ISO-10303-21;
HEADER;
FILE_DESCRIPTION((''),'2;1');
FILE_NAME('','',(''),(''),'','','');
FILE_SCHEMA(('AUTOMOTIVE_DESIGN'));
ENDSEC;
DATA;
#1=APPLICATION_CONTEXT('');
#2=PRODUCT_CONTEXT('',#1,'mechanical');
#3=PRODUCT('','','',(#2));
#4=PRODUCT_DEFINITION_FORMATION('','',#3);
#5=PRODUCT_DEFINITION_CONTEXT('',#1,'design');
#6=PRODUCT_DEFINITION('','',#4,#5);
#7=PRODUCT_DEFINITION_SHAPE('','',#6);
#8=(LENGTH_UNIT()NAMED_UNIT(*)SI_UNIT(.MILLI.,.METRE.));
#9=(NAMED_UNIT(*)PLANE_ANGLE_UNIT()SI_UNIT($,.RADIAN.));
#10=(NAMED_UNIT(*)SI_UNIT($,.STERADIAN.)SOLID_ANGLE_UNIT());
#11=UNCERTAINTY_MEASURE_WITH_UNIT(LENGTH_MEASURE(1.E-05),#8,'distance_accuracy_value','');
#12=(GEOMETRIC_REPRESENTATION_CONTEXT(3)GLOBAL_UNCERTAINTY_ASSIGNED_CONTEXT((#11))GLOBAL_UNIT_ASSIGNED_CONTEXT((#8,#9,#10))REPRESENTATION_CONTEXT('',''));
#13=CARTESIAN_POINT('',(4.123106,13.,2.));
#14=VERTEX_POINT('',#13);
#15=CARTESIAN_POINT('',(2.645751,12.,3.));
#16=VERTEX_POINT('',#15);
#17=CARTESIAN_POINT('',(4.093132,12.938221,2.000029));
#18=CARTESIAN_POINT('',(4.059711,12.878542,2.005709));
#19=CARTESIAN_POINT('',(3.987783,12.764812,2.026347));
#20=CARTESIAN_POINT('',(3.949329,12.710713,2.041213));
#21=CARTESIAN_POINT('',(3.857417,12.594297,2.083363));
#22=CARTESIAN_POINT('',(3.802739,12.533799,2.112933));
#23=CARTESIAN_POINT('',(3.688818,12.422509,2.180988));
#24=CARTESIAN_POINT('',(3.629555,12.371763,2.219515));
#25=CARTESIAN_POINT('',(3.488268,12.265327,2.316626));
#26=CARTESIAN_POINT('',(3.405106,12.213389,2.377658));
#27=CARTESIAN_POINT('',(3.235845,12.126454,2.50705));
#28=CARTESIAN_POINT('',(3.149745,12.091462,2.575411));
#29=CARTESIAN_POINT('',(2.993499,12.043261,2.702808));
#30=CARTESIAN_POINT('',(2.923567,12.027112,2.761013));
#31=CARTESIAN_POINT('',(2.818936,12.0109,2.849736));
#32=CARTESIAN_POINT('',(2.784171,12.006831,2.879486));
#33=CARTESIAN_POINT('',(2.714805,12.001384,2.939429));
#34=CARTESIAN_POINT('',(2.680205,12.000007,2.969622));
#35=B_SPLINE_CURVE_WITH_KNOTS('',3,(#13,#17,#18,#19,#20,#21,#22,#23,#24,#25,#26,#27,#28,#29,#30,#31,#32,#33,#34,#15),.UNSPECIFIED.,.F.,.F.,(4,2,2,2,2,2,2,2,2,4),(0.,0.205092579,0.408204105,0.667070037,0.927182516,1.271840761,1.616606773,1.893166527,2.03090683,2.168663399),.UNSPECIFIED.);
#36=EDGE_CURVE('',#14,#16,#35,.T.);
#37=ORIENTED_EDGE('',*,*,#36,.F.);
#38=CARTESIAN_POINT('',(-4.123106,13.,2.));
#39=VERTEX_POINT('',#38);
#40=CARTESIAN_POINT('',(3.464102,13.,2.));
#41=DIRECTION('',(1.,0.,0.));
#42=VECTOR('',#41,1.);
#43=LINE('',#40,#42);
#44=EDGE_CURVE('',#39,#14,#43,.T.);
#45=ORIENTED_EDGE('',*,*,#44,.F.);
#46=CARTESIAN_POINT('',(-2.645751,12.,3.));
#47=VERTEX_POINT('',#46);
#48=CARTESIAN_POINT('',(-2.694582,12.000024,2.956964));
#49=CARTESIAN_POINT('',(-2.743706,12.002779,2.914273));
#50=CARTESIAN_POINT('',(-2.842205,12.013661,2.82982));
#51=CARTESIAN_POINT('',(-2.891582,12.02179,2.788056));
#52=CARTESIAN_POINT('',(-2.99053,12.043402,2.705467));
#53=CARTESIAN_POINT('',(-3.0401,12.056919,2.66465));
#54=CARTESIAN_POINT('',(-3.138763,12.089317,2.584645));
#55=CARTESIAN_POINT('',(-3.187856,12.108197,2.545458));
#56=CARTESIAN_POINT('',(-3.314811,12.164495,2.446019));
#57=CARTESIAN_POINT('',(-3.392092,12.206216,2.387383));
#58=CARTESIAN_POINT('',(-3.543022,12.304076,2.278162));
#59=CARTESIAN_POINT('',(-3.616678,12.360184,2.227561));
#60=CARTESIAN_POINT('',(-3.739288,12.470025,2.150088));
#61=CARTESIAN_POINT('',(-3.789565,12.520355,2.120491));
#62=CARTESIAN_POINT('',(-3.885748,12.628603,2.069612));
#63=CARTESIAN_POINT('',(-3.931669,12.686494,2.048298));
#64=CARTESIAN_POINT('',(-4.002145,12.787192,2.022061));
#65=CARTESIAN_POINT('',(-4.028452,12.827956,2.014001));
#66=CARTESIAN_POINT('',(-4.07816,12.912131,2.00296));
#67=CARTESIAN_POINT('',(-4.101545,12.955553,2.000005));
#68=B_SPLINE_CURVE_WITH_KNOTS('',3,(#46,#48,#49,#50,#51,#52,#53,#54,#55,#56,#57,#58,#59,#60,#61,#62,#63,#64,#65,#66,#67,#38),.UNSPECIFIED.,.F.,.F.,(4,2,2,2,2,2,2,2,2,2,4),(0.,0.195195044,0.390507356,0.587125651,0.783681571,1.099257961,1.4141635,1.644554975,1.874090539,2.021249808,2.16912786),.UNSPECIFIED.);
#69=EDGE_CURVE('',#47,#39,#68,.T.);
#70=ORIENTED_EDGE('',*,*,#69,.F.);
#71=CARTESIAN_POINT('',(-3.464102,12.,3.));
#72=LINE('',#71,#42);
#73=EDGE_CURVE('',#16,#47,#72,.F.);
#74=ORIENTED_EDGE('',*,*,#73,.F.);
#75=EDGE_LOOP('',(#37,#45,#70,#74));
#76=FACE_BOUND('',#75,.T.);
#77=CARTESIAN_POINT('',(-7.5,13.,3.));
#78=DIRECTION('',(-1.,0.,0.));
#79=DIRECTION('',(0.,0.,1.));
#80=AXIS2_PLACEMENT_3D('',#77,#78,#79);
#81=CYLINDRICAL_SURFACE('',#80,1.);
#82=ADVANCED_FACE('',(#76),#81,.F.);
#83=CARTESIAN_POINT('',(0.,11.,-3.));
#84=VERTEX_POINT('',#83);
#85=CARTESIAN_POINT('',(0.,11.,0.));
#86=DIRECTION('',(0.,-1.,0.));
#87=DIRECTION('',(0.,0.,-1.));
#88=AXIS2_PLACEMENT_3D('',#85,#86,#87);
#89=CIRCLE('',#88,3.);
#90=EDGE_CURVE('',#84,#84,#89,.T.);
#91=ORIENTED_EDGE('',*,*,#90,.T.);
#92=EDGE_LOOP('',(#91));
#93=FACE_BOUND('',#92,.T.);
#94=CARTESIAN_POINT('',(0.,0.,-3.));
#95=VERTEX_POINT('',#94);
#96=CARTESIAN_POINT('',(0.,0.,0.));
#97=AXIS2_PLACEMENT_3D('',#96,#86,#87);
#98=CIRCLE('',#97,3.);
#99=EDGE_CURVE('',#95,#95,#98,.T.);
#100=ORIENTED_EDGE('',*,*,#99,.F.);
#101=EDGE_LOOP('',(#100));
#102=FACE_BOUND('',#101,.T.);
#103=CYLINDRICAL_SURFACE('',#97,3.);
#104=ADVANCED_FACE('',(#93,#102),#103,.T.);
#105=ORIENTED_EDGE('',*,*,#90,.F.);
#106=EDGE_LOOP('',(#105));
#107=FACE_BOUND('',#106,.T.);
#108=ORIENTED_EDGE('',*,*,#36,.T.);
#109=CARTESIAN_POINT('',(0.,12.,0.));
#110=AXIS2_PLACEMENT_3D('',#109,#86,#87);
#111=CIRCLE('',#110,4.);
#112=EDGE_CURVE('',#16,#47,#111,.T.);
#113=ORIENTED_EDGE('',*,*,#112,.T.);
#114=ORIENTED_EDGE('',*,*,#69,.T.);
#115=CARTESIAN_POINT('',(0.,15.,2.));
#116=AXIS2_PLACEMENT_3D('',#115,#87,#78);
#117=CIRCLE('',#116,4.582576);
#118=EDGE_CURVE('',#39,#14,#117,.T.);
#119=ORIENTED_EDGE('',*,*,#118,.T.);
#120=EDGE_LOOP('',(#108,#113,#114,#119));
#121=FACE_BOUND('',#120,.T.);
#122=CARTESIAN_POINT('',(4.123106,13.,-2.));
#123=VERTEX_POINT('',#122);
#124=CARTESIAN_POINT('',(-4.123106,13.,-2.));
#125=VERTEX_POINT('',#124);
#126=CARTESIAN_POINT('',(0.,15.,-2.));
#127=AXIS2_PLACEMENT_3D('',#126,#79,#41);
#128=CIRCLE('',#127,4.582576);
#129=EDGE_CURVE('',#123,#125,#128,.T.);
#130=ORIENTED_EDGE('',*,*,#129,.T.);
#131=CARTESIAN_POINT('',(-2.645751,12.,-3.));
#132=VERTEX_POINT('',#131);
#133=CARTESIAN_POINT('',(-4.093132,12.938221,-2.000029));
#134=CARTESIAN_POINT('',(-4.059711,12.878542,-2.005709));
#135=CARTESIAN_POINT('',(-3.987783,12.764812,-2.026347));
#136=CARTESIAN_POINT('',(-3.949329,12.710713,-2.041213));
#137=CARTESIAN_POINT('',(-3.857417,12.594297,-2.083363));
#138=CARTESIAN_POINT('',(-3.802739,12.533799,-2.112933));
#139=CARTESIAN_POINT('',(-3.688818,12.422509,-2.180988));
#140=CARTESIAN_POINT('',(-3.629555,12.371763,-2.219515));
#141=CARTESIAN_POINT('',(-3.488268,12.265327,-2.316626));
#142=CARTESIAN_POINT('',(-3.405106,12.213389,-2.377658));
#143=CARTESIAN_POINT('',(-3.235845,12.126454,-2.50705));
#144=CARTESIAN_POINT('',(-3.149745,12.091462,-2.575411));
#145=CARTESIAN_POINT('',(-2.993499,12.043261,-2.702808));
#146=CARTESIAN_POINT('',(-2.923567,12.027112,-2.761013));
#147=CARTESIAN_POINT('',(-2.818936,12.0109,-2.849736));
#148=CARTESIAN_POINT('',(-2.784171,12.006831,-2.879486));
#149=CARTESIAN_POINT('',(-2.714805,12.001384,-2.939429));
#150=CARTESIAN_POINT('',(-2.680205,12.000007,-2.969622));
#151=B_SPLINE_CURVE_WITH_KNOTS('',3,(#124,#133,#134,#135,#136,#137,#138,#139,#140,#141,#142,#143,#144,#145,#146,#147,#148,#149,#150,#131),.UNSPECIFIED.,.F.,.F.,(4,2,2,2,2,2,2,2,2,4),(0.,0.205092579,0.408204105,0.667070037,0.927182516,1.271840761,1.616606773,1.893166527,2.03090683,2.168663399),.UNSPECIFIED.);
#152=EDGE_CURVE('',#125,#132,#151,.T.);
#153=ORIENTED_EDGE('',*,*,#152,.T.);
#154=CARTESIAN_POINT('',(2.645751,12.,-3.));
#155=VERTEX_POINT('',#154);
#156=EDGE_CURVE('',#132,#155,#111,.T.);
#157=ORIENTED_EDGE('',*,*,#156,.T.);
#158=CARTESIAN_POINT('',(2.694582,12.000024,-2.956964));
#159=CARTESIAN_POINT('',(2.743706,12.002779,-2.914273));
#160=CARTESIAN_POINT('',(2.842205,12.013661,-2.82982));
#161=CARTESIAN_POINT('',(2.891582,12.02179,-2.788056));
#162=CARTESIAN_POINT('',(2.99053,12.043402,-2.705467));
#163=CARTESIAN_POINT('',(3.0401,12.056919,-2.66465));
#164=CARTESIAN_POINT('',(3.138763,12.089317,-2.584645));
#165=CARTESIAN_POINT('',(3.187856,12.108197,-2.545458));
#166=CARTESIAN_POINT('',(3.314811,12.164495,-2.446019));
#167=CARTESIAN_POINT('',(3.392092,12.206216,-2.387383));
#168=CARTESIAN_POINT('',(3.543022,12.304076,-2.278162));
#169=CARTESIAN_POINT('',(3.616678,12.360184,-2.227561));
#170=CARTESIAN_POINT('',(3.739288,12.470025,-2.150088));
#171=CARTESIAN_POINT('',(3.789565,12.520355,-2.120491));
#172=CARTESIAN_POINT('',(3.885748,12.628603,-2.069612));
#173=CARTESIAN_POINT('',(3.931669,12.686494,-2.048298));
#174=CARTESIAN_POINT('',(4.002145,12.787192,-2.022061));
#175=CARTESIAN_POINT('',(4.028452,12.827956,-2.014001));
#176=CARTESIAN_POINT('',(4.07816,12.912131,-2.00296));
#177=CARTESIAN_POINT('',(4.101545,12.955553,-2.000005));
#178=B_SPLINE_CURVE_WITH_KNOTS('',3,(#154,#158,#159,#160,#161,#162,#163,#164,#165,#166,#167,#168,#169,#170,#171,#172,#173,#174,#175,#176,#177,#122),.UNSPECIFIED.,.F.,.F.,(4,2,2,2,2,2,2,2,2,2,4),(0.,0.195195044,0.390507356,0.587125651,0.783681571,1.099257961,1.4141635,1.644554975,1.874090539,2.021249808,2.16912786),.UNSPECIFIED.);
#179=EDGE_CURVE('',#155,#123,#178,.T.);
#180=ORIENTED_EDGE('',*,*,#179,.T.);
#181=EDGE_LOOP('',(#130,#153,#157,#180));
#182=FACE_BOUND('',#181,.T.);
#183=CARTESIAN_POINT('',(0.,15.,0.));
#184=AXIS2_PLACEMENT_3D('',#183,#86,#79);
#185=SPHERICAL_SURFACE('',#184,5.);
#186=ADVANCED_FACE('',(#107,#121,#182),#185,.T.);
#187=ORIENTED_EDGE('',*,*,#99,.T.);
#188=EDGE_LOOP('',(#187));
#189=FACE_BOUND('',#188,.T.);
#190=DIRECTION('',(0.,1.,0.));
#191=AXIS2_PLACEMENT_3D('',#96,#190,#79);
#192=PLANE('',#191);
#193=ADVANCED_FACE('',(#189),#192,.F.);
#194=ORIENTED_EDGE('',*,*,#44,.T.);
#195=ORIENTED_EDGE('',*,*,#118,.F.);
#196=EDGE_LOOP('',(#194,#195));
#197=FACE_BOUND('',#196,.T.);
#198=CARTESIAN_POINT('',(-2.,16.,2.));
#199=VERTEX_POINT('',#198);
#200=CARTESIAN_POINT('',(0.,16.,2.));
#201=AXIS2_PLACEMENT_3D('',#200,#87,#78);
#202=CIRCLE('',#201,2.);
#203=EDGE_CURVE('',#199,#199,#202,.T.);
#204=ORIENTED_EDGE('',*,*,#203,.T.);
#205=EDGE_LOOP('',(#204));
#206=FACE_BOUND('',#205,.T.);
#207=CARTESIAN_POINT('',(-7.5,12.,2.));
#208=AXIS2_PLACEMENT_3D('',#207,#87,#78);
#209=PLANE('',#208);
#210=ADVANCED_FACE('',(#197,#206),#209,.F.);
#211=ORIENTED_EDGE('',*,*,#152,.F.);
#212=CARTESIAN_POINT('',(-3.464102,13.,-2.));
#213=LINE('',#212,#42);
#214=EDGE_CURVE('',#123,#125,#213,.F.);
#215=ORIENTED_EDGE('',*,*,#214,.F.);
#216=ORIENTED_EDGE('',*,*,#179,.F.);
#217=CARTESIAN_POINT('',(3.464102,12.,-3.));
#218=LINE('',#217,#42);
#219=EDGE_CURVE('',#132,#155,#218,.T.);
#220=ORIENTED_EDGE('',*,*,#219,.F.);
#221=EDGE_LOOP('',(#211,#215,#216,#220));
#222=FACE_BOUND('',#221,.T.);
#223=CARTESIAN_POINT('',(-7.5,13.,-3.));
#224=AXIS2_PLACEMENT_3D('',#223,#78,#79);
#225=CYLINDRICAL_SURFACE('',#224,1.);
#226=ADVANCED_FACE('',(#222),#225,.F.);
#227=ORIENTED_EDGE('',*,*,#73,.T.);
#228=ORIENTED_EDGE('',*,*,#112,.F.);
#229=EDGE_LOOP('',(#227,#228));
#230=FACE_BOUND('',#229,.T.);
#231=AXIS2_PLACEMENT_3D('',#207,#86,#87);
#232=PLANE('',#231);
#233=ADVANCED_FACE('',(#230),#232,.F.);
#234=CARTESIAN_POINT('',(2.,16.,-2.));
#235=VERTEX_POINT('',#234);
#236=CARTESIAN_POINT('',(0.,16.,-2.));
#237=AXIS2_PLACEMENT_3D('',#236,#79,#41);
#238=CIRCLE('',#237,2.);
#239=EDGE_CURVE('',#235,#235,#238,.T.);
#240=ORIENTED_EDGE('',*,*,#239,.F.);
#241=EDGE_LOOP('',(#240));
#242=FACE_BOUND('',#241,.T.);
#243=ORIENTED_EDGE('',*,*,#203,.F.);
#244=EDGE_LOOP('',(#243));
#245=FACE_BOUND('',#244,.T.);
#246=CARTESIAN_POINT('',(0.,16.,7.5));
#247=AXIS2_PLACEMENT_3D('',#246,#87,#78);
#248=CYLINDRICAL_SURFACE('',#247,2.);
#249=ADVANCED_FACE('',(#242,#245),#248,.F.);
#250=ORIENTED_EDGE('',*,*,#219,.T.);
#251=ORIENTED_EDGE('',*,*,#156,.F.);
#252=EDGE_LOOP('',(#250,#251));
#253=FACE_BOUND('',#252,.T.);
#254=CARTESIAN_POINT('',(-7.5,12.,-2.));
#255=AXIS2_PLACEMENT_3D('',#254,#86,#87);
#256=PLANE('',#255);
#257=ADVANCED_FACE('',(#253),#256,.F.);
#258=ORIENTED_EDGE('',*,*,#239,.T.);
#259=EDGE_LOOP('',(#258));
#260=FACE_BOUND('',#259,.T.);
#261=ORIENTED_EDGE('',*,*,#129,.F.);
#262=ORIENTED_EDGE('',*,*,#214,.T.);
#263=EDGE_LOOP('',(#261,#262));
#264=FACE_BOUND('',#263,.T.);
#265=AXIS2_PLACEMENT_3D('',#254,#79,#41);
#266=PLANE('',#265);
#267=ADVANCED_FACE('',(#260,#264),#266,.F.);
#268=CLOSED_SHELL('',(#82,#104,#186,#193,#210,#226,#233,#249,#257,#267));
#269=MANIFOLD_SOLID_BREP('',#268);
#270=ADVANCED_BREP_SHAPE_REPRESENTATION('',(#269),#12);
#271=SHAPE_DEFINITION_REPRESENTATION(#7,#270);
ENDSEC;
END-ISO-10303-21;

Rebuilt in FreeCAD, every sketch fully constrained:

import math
import FreeCAD as App
import Part
import Sketcher

V = App.Vector
Q = App.Units.Quantity


def edges_at(feature, points):
    """Names of the edges that pass closest to the given points."""
    edges = feature.Shape.Edges
    near = lambda p: min(range(len(edges)), key=lambda i: edges[i].distToShape(Part.Vertex(*p))[0])
    return sorted({f"Edge{near(p) + 1}" for p in points})


def add_polygon(sketch, points):
    """Adds a closed chain of lines whose ends are joined by coincident constraints."""
    first, n = sketch.GeometryCount, len(points)
    for a, b in zip(points, points[1:] + points[:1]):
        sketch.addGeometry(Part.LineSegment(App.Vector(*a, 0), App.Vector(*b, 0)), False)
    for i in range(n):
        sketch.addConstraint(Sketcher.Constraint("Coincident", first + i, 2, first + (i + 1) % n, 1))

doc = App.newDocument("Part")
body = doc.addObject("PartDesign::Body", "Body")

# Sketch on YZ plane
sketch1 = body.newObject("Sketcher::SketchObject", "Sketch")
sketch1.AttachmentSupport = (doc.getObject("YZ_Plane"), [""])
sketch1.MapMode = "FlatFace"
add_polygon(sketch1, [(11, 3), (0, 3), (0, 0), (11, 0)])  # lines 0-3
sketch1.addConstraint(Sketcher.Constraint("Horizontal", 0))
sketch1.addConstraint(Sketcher.Constraint("Vertical", 1))
sketch1.addConstraint(Sketcher.Constraint("Horizontal", 2))
sketch1.addConstraint(Sketcher.Constraint("Vertical", 3))
sketch1.addConstraint(Sketcher.Constraint("Coincident", 1, 2, -1, 1))
sketch1.addConstraint(Sketcher.Constraint("DistanceX", 0, 2, 0, 1, Q("11 mm")))
sketch1.addConstraint(Sketcher.Constraint("DistanceY", 1, 2, 1, 1, Q("3 mm")))
revolution = body.newObject("PartDesign::Revolution", "Revolution")
revolution.Profile = sketch1
revolution.ReferenceAxis = (sketch1, ["H_Axis"])
revolution.Angle = 360

# Sketch on YZ plane
sketch2 = body.newObject("Sketcher::SketchObject", "Sketch001")
sketch2.AttachmentSupport = (doc.getObject("YZ_Plane"), [""])
sketch2.MapMode = "FlatFace"
sketch2.addGeometry(Part.LineSegment(V(11, 0, 0), V(20, 0, 0)), False)
sketch2.addGeometry(Part.ArcOfCircle(Part.Circle(V(15, 0, 0), V(0, 0, 1), 5), math.radians(0), math.radians(143)), False)
sketch2.addGeometry(Part.LineSegment(V(11, 3, 0), V(11, 0, 0)), False)
sketch2.addConstraint(Sketcher.Constraint("Coincident", 0, 2, 1, 1))
sketch2.addConstraint(Sketcher.Constraint("Coincident", 1, 2, 2, 1))
sketch2.addConstraint(Sketcher.Constraint("Coincident", 2, 2, 0, 1))
sketch2.addConstraint(Sketcher.Constraint("Horizontal", 0))
sketch2.addConstraint(Sketcher.Constraint("Vertical", 2))
sketch2.addConstraint(Sketcher.Constraint("PointOnObject", 1, 3, -1))
sketch2.addConstraint(Sketcher.Constraint("PointOnObject", 0, 2, -1))
sketch2.addConstraint(Sketcher.Constraint("Radius", 1, Q("5 mm")))
sketch2.addConstraint(Sketcher.Constraint("DistanceX", 0, 1, 0, 2, Q("9 mm")))
sketch2.addConstraint(Sketcher.Constraint("DistanceX", -1, 1, 1, 3, Q("15 mm")))
revolution2 = body.newObject("PartDesign::Revolution", "Revolution001")
revolution2.Profile = sketch2
revolution2.ReferenceAxis = (sketch2, ["H_Axis"])
revolution2.Angle = 360

# Sketch on YZ plane
sketch3 = body.newObject("Sketcher::SketchObject", "Sketch002")
sketch3.AttachmentSupport = (doc.getObject("YZ_Plane"), [""])
sketch3.MapMode = "FlatFace"
add_polygon(sketch3, [(20, -2), (12, -2), (12, -6), (20, -6)])  # lines 0-3
sketch3.addConstraint(Sketcher.Constraint("Horizontal", 0))
sketch3.addConstraint(Sketcher.Constraint("Vertical", 1))
sketch3.addConstraint(Sketcher.Constraint("Horizontal", 2))
sketch3.addConstraint(Sketcher.Constraint("Vertical", 3))
sketch3.addConstraint(Sketcher.Constraint("DistanceX", 0, 2, 0, 1, Q("8 mm")))
sketch3.addConstraint(Sketcher.Constraint("DistanceY", 1, 2, 1, 1, Q("4 mm")))
sketch3.addConstraint(Sketcher.Constraint("DistanceX", -1, 1, 0, 2, Q("12 mm")))
sketch3.addConstraint(Sketcher.Constraint("DistanceY", 0, 2, -1, 1, Q("2 mm")))
pocket1 = body.newObject("PartDesign::Pocket", "Pocket")
pocket1.Profile = sketch3
pocket1.Length = 15
pocket1.Midplane = True

# Sketch on YZ plane
sketch4 = body.newObject("Sketcher::SketchObject", "Sketch003")
sketch4.AttachmentSupport = (doc.getObject("YZ_Plane"), [""])
sketch4.MapMode = "FlatFace"
add_polygon(sketch4, [(20, 7), (12, 7), (12, 2), (20, 2)])  # lines 0-3
sketch4.addConstraint(Sketcher.Constraint("Horizontal", 0))
sketch4.addConstraint(Sketcher.Constraint("Vertical", 1))
sketch4.addConstraint(Sketcher.Constraint("Horizontal", 2))
sketch4.addConstraint(Sketcher.Constraint("Vertical", 3))
sketch4.addConstraint(Sketcher.Constraint("DistanceX", 0, 2, 0, 1, Q("8 mm")))
sketch4.addConstraint(Sketcher.Constraint("DistanceY", 1, 2, 1, 1, Q("5 mm")))
sketch4.addConstraint(Sketcher.Constraint("DistanceX", -1, 1, 0, 2, Q("12 mm")))
sketch4.addConstraint(Sketcher.Constraint("DistanceY", -1, 1, 0, 2, Q("7 mm")))
pocket2 = body.newObject("PartDesign::Pocket", "Pocket001")
pocket2.Profile = sketch4
pocket2.Length = 15
pocket2.Midplane = True
doc.recompute()

fillet = body.newObject("PartDesign::Fillet", "Fillet")
fillet.Base = (pocket2, edges_at(pocket2, [(0, 12, -2), (0, 12, 2)]))
fillet.Radius = 1

# Sketch on XY plane
sketch5 = body.newObject("Sketcher::SketchObject", "Sketch004")
sketch5.AttachmentSupport = (doc.getObject("XY_Plane"), [""])
sketch5.MapMode = "FlatFace"
sketch5.addGeometry(Part.Circle(V(0, 16, 0), V(0, 0, 1), 2), False)
sketch5.addConstraint(Sketcher.Constraint("PointOnObject", 0, 3, -2))
sketch5.addConstraint(Sketcher.Constraint("Diameter", 0, Q("4 mm")))
sketch5.addConstraint(Sketcher.Constraint("DistanceY", -1, 1, 0, 3, Q("16 mm")))
pocket3 = body.newObject("PartDesign::Pocket", "Pocket002")
pocket3.Profile = sketch5
pocket3.Length = 15
pocket3.Midplane = True

doc.recompute()
